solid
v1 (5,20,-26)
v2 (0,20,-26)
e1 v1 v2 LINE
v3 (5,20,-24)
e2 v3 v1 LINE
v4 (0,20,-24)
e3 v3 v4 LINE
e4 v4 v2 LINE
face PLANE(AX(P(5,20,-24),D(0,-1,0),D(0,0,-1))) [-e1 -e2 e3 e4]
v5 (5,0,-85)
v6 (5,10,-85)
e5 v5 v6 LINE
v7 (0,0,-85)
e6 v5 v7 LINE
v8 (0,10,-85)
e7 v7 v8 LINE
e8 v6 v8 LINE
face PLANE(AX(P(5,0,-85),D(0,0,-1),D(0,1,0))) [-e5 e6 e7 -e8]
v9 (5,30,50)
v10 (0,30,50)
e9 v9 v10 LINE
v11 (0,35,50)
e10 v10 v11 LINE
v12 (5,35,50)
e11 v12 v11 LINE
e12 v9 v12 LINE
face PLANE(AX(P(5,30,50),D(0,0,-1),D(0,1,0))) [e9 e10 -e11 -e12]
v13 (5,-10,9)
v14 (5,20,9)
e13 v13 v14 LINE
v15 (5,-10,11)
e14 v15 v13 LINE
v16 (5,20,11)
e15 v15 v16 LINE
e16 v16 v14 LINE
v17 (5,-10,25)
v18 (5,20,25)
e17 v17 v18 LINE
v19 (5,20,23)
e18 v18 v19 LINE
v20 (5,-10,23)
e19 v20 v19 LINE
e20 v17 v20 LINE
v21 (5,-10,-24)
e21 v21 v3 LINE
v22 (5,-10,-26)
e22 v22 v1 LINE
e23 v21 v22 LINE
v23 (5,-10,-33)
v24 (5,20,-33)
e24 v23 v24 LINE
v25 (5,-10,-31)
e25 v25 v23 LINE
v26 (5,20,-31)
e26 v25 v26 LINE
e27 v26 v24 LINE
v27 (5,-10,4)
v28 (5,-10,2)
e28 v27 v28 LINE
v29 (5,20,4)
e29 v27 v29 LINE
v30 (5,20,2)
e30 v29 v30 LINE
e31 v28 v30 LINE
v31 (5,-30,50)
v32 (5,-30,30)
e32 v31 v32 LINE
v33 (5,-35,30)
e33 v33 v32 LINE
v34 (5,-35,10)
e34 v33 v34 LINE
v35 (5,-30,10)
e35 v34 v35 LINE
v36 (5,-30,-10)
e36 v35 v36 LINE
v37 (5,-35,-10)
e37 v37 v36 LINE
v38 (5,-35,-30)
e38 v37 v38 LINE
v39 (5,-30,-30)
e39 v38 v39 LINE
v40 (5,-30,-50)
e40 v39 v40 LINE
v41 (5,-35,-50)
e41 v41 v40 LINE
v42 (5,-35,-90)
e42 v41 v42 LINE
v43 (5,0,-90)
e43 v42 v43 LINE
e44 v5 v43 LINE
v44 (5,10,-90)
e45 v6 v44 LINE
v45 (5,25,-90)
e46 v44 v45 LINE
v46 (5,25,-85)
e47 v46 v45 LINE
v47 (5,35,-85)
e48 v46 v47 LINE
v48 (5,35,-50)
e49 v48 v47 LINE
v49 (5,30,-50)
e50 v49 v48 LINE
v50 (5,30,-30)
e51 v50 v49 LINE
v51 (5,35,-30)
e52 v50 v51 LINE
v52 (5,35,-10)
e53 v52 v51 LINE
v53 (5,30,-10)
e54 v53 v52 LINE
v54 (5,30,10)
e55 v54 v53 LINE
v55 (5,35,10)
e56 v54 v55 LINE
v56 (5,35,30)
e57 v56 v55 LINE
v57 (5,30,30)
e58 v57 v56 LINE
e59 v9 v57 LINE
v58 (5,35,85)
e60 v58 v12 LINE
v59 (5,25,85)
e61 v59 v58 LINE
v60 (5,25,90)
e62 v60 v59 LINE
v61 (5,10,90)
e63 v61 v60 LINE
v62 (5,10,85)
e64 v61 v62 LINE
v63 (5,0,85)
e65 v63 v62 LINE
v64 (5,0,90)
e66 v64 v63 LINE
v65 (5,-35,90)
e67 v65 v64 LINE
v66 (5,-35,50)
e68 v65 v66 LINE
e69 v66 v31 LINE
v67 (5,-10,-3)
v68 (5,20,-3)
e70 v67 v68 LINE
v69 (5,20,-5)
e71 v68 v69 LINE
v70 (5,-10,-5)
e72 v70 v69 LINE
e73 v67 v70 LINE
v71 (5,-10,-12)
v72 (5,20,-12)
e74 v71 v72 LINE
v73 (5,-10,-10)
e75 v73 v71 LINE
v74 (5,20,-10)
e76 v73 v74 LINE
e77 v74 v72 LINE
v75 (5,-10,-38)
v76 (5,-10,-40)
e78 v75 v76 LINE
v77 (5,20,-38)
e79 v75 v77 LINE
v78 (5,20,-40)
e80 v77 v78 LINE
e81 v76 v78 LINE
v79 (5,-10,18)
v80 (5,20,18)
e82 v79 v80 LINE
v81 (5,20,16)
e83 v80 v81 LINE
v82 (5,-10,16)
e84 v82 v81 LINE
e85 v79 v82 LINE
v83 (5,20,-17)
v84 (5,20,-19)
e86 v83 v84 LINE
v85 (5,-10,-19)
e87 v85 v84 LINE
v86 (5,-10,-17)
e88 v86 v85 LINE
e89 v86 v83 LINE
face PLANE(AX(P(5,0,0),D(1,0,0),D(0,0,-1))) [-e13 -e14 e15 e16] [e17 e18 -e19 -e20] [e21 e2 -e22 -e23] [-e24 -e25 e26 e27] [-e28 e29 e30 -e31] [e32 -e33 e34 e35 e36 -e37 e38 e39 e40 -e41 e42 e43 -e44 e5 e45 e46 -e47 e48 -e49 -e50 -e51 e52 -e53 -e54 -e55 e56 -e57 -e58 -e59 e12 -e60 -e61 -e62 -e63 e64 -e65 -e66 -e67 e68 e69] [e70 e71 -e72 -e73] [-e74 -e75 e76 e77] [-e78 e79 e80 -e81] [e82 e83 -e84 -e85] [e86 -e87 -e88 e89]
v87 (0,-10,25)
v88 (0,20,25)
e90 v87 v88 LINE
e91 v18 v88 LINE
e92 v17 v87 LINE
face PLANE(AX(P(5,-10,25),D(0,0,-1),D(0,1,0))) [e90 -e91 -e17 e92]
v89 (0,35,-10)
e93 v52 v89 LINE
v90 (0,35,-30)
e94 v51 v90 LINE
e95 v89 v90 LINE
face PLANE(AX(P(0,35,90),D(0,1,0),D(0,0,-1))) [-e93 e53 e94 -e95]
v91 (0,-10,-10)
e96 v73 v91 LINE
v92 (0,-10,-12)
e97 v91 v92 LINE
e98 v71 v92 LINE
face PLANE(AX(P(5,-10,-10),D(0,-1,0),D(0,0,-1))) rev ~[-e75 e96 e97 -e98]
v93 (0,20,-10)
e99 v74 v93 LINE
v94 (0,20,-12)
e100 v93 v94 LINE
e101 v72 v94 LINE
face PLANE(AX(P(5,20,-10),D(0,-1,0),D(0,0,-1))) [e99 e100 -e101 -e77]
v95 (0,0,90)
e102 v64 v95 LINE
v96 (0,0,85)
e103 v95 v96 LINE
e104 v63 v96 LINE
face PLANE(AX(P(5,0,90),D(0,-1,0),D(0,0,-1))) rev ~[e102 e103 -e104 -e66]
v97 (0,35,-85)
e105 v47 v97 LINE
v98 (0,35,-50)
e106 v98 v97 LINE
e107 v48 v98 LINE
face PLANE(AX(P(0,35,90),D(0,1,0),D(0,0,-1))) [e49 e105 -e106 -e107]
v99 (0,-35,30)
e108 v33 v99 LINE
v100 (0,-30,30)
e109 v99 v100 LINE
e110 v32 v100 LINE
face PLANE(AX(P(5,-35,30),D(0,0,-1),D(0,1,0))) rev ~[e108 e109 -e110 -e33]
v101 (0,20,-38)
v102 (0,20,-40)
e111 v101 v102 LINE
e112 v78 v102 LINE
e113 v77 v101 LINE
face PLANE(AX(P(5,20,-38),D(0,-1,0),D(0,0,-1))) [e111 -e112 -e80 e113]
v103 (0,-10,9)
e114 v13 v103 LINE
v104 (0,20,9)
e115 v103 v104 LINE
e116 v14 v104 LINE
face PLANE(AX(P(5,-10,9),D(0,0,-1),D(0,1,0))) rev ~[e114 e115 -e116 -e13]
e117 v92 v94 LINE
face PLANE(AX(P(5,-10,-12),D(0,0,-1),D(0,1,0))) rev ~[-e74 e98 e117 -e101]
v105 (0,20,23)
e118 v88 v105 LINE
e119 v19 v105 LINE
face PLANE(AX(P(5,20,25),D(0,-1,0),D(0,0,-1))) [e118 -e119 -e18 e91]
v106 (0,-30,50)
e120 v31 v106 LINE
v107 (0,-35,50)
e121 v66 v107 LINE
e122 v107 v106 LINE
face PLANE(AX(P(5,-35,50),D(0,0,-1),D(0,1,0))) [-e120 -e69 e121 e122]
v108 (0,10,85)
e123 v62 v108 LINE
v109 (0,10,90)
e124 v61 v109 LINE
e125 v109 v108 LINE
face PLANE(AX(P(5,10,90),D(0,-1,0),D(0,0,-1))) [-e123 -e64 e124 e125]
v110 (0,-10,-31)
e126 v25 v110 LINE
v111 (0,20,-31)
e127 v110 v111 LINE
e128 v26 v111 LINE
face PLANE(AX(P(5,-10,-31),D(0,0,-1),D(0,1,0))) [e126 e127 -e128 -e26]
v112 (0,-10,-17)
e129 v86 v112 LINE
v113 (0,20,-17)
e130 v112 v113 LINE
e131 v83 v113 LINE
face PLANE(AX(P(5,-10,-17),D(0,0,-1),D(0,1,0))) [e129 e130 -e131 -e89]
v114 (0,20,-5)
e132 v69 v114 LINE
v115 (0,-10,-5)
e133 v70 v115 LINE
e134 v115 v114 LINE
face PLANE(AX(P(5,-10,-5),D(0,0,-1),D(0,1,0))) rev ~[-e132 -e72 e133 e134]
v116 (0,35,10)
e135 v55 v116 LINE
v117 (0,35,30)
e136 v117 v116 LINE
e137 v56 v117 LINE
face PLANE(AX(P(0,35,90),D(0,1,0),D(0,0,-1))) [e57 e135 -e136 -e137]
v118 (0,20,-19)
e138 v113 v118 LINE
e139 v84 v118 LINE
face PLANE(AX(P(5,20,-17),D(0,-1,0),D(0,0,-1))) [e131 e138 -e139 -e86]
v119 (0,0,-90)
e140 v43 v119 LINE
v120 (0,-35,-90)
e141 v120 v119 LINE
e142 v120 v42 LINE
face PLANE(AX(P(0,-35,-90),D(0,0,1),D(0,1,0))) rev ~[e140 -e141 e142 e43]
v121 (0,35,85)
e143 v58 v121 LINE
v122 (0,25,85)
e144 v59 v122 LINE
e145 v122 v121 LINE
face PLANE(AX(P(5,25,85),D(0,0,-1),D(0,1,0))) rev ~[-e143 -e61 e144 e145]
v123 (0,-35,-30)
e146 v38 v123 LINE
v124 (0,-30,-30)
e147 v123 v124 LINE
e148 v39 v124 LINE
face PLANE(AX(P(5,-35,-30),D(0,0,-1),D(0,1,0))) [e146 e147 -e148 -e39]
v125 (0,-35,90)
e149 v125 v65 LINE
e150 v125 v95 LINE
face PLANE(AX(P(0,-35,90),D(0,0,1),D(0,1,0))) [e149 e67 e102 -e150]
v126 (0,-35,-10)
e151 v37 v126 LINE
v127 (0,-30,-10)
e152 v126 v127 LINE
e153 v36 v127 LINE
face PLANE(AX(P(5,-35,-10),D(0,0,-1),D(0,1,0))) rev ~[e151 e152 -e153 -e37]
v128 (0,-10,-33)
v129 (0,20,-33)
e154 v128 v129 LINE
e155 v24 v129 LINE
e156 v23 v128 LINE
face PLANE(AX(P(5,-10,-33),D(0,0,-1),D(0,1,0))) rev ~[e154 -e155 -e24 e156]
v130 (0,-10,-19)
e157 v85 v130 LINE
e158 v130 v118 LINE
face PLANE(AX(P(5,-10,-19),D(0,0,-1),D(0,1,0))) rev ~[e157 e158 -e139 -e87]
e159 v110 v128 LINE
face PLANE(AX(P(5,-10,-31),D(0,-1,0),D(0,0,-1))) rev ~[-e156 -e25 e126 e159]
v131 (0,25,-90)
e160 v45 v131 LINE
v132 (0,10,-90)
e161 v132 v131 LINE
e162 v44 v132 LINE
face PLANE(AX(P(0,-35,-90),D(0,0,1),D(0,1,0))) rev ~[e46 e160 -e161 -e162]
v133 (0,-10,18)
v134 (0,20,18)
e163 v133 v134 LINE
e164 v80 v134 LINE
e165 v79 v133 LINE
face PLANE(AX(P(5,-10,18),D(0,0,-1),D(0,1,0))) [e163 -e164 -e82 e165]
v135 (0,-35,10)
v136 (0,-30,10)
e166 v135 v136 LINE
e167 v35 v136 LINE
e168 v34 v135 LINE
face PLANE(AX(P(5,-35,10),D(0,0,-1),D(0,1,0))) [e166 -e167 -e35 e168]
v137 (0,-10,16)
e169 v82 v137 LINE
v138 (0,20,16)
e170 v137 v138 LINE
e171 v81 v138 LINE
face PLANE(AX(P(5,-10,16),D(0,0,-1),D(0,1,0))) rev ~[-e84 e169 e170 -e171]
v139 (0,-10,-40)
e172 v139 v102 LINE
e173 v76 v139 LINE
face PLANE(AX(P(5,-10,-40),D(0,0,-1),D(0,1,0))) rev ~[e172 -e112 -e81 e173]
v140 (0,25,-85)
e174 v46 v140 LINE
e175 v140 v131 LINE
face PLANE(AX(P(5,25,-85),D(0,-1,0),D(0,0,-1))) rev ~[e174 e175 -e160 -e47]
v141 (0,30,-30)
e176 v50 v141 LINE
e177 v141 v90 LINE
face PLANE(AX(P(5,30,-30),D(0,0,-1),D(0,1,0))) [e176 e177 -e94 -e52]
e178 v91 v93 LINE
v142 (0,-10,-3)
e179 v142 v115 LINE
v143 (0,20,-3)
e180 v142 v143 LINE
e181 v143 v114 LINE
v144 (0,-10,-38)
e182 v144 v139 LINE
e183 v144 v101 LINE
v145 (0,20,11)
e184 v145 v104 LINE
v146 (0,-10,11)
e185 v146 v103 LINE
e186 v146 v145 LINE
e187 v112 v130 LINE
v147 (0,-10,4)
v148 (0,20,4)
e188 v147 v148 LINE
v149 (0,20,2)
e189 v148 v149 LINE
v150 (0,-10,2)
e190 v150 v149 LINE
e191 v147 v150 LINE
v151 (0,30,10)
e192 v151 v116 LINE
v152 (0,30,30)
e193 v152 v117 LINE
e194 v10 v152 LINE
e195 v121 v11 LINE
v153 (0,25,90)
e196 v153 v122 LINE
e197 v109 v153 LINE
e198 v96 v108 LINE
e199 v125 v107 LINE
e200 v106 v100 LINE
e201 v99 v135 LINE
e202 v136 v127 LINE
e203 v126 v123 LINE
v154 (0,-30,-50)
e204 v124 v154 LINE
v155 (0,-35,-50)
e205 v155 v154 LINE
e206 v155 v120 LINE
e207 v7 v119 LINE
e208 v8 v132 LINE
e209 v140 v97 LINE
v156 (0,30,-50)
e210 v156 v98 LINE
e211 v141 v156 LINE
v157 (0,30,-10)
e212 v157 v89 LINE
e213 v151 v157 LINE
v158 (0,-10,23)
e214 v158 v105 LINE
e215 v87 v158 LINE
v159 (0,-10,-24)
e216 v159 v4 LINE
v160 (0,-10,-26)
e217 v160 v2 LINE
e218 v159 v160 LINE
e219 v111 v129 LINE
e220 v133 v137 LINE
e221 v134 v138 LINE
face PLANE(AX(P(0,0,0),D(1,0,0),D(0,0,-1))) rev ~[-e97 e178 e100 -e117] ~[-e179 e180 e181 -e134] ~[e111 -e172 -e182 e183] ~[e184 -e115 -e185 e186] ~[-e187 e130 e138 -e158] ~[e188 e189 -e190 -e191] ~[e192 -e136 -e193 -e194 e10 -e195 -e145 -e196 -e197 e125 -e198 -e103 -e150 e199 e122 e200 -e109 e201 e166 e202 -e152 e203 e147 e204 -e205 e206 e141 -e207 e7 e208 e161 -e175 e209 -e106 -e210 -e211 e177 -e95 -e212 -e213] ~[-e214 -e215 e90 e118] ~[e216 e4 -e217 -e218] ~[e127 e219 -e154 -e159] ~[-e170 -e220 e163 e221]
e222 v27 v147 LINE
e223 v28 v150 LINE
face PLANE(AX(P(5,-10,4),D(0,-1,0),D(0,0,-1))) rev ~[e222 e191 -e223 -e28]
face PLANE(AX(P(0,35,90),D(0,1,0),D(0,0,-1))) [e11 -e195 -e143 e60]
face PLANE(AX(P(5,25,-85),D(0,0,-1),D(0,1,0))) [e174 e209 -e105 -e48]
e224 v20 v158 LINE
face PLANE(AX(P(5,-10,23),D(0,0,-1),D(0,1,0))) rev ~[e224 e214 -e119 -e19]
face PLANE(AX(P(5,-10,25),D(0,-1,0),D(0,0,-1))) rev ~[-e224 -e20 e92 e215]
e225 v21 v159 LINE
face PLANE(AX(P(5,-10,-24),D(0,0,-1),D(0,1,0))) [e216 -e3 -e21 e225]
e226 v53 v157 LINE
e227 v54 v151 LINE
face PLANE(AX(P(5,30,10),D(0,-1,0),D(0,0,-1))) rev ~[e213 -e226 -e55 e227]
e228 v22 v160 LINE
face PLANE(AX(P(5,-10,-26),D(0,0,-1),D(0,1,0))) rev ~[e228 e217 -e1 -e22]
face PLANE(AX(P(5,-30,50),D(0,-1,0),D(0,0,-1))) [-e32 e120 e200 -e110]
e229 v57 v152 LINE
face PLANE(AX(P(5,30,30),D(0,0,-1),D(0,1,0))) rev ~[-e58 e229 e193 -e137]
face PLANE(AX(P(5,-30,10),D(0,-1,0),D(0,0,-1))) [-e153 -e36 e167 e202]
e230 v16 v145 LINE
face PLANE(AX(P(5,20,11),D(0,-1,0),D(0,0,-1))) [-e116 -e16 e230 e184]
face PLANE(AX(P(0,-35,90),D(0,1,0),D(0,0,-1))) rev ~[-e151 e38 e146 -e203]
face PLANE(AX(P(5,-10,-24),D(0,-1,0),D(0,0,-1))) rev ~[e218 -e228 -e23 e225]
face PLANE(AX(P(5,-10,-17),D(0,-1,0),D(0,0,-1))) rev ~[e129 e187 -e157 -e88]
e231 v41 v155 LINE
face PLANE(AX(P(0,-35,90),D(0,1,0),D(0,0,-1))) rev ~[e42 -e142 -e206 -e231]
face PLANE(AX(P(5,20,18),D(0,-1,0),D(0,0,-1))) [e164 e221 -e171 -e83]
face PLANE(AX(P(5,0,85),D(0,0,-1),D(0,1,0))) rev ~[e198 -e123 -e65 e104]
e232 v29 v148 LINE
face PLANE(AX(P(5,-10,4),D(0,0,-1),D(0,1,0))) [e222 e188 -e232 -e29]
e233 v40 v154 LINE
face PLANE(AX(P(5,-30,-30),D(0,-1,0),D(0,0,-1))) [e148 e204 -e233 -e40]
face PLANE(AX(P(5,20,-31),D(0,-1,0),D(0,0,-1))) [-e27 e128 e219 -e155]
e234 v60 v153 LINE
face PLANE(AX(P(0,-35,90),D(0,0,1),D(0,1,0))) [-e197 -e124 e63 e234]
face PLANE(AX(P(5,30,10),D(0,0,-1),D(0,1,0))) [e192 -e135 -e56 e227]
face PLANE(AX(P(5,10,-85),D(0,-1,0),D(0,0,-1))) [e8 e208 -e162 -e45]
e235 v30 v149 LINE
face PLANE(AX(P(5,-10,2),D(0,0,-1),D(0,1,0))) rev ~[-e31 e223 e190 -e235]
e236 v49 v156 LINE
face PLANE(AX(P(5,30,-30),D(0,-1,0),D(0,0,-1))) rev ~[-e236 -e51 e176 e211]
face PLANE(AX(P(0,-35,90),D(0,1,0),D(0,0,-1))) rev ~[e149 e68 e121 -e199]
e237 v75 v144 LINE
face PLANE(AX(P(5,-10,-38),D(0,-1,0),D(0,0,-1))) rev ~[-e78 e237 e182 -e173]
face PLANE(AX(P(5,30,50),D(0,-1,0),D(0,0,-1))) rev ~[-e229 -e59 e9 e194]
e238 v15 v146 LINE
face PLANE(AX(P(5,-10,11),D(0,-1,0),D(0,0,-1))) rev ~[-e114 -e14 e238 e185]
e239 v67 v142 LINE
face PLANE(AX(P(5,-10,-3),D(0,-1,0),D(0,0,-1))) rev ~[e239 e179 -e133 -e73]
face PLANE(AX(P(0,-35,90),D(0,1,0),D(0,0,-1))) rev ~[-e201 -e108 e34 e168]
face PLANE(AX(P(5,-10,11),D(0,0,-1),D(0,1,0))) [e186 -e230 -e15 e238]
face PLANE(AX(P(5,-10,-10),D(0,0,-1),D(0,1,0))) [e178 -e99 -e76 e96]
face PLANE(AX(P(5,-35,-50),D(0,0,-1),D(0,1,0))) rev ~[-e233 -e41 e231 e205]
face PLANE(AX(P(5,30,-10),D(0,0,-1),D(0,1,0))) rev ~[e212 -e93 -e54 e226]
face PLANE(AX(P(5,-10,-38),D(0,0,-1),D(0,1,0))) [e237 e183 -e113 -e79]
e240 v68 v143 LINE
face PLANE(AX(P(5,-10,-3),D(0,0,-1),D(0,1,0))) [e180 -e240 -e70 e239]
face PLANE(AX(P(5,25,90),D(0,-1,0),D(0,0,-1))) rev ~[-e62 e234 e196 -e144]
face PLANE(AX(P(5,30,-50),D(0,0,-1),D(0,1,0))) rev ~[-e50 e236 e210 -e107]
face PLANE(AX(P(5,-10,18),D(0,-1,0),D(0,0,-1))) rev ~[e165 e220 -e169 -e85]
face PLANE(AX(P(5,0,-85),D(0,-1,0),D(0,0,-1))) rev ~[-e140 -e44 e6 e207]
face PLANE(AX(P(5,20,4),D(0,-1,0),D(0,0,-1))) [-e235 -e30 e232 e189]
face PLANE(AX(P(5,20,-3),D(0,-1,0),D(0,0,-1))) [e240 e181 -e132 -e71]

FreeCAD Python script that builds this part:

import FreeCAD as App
import Part
import Sketcher
from FreeCAD import Vector
Q = App.Units.Quantity

doc = App.newDocument("Part")
params = doc.addObject("Spreadsheet::Sheet", "Params")
for row, (alias, value) in enumerate([
    ("sketch1_width", "70 mm"),
    ("sketch1_height", "180 mm"),
    ("pad1_length", "5 mm"),
    ("sketch2_width", "10 mm"),
    ("sketch2_width2", "5 mm"),
    ("sketch2_height", "20 mm"),
    ("pocket1_length", "5 mm"),
    ("sketch3_width", "30 mm"),
    ("sketch3_height", "2 mm"),
    ("pocket2_length", "5 mm"),
], start=1):
    params.set(f"A{row}", alias)
    params.set(f"B{row}", "=" + value)
    params.setAlias(f"B{row}", alias)

body = doc.addObject("PartDesign::Body", "Body")

sketch1 = body.newObject("Sketcher::SketchObject", "Sketch")
sketch1.AttachmentSupport = (doc.getObject("YZ_Plane"), [""])
sketch1.MapMode = "FlatFace"
sketch1.addGeometry(Part.LineSegment(Vector(35, 90, 0), Vector(-35, 90, 0)), False)
sketch1.addGeometry(Part.LineSegment(Vector(-35, 90, 0), Vector(-35, -90, 0)), False)
sketch1.addGeometry(Part.LineSegment(Vector(-35, -90, 0), Vector(35, -90, 0)), False)
sketch1.addGeometry(Part.LineSegment(Vector(35, -90, 0), Vector(35, 90, 0)), False)
sketch1.addConstraint(Sketcher.Constraint("Coincident", 0, 2, 1, 1))
sketch1.addConstraint(Sketcher.Constraint("Coincident", 1, 2, 2, 1))
sketch1.addConstraint(Sketcher.Constraint("Coincident", 2, 2, 3, 1))
sketch1.addConstraint(Sketcher.Constraint("Coincident", 3, 2, 0, 1))
sketch1.addConstraint(Sketcher.Constraint("Horizontal", 0))
sketch1.addConstraint(Sketcher.Constraint("Vertical", 1))
sketch1.addConstraint(Sketcher.Constraint("Horizontal", 2))
sketch1.addConstraint(Sketcher.Constraint("Vertical", 3))
sketch1.addConstraint(Sketcher.Constraint("Symmetric", 0, 2, 2, 2, -1, 1))
sketch1.addConstraint(Sketcher.Constraint("DistanceX", 0, 2, 0, 1, Q("70 mm")))
sketch1.addConstraint(Sketcher.Constraint("DistanceY", 1, 2, 1, 1, Q("180 mm")))
sketch1.setExpression("Constraints[9]", "Params.sketch1_width")
sketch1.setExpression("Constraints[10]", "Params.sketch1_height")
pad1 = body.newObject("PartDesign::Pad", "Pad")
pad1.Profile = sketch1
pad1.setExpression("Length", "Params.pad1_length")

sketch2 = body.newObject("Sketcher::SketchObject", "Sketch001")
sketch2.AttachmentSupport = (doc.getObject("YZ_Plane"), [""])
sketch2.MapMode = "FlatFace"
sketch2.AttachmentOffset = App.Placement(Vector(0, 0, 5), App.Rotation())
sketch2.addGeometry(Part.LineSegment(Vector(35, 90, 0), Vector(25, 90, 0)), False)
sketch2.addGeometry(Part.LineSegment(Vector(25, 90, 0), Vector(25, 85, 0)), False)
sketch2.addGeometry(Part.LineSegment(Vector(25, 85, 0), Vector(35, 85, 0)), False)
sketch2.addGeometry(Part.LineSegment(Vector(35, 85, 0), Vector(35, 90, 0)), False)
sketch2.addGeometry(Part.LineSegment(Vector(10, 90, 0), Vector(0, 90, 0)), False)
sketch2.addGeometry(Part.LineSegment(Vector(0, 90, 0), Vector(0, 85, 0)), False)
sketch2.addGeometry(Part.LineSegment(Vector(0, 85, 0), Vector(10, 85, 0)), False)
sketch2.addGeometry(Part.LineSegment(Vector(10, 85, 0), Vector(10, 90, 0)), False)
sketch2.addGeometry(Part.LineSegment(Vector(35, -85, 0), Vector(25, -85, 0)), False)
sketch2.addGeometry(Part.LineSegment(Vector(25, -85, 0), Vector(25, -90, 0)), False)
sketch2.addGeometry(Part.LineSegment(Vector(25, -90, 0), Vector(35, -90, 0)), False)
sketch2.addGeometry(Part.LineSegment(Vector(35, -90, 0), Vector(35, -85, 0)), False)
sketch2.addGeometry(Part.LineSegment(Vector(10, -85, 0), Vector(0, -85, 0)), False)
sketch2.addGeometry(Part.LineSegment(Vector(0, -85, 0), Vector(0, -90, 0)), False)
sketch2.addGeometry(Part.LineSegment(Vector(0, -90, 0), Vector(10, -90, 0)), False)
sketch2.addGeometry(Part.LineSegment(Vector(10, -90, 0), Vector(10, -85, 0)), False)
sketch2.addGeometry(Part.LineSegment(Vector(35, 50, 0), Vector(30, 50, 0)), False)
sketch2.addGeometry(Part.LineSegment(Vector(30, 50, 0), Vector(30, 30, 0)), False)
sketch2.addGeometry(Part.LineSegment(Vector(30, 30, 0), Vector(35, 30, 0)), False)
sketch2.addGeometry(Part.LineSegment(Vector(35, 30, 0), Vector(35, 50, 0)), False)
sketch2.addGeometry(Part.LineSegment(Vector(35, -30, 0), Vector(30, -30, 0)), False)
sketch2.addGeometry(Part.LineSegment(Vector(30, -30, 0), Vector(30, -50, 0)), False)
sketch2.addGeometry(Part.LineSegment(Vector(30, -50, 0), Vector(35, -50, 0)), False)
sketch2.addGeometry(Part.LineSegment(Vector(35, -50, 0), Vector(35, -30, 0)), False)
sketch2.addGeometry(Part.LineSegment(Vector(35, 10, 0), Vector(30, 10, 0)), False)
sketch2.addGeometry(Part.LineSegment(Vector(30, 10, 0), Vector(30, -10, 0)), False)
sketch2.addGeometry(Part.LineSegment(Vector(30, -10, 0), Vector(35, -10, 0)), False)
sketch2.addGeometry(Part.LineSegment(Vector(35, -10, 0), Vector(35, 10, 0)), False)
sketch2.addGeometry(Part.LineSegment(Vector(-30, 50, 0), Vector(-35, 50, 0)), False)
sketch2.addGeometry(Part.LineSegment(Vector(-35, 50, 0), Vector(-35, 30, 0)), False)
sketch2.addGeometry(Part.LineSegment(Vector(-35, 30, 0), Vector(-30, 30, 0)), False)
sketch2.addGeometry(Part.LineSegment(Vector(-30, 30, 0), Vector(-30, 50, 0)), False)
sketch2.addGeometry(Part.LineSegment(Vector(-30, 10, 0), Vector(-35, 10, 0)), False)
sketch2.addGeometry(Part.LineSegment(Vector(-35, 10, 0), Vector(-35, -10, 0)), False)
sketch2.addGeometry(Part.LineSegment(Vector(-35, -10, 0), Vector(-30, -10, 0)), False)
sketch2.addGeometry(Part.LineSegment(Vector(-30, -10, 0), Vector(-30, 10, 0)), False)
sketch2.addGeometry(Part.LineSegment(Vector(-30, -30, 0), Vector(-35, -30, 0)), False)
sketch2.addGeometry(Part.LineSegment(Vector(-35, -30, 0), Vector(-35, -50, 0)), False)
sketch2.addGeometry(Part.LineSegment(Vector(-35, -50, 0), Vector(-30, -50, 0)), False)
sketch2.addGeometry(Part.LineSegment(Vector(-30, -50, 0), Vector(-30, -30, 0)), False)
sketch2.addConstraint(Sketcher.Constraint("Coincident", 0, 2, 1, 1))
sketch2.addConstraint(Sketcher.Constraint("Coincident", 1, 2, 2, 1))
sketch2.addConstraint(Sketcher.Constraint("Coincident", 2, 2, 3, 1))
sketch2.addConstraint(Sketcher.Constraint("Coincident", 3, 2, 0, 1))
sketch2.addConstraint(Sketcher.Constraint("Coincident", 4, 2, 5, 1))
sketch2.addConstraint(Sketcher.Constraint("Coincident", 5, 2, 6, 1))
sketch2.addConstraint(Sketcher.Constraint("Coincident", 6, 2, 7, 1))
sketch2.addConstraint(Sketcher.Constraint("Coincident", 7, 2, 4, 1))
sketch2.addConstraint(Sketcher.Constraint("Coincident", 8, 2, 9, 1))
sketch2.addConstraint(Sketcher.Constraint("Coincident", 9, 2, 10, 1))
sketch2.addConstraint(Sketcher.Constraint("Coincident", 10, 2, 11, 1))
sketch2.addConstraint(Sketcher.Constraint("Coincident", 11, 2, 8, 1))
sketch2.addConstraint(Sketcher.Constraint("Coincident", 12, 2, 13, 1))
sketch2.addConstraint(Sketcher.Constraint("Coincident", 13, 2, 14, 1))
sketch2.addConstraint(Sketcher.Constraint("Coincident", 14, 2, 15, 1))
sketch2.addConstraint(Sketcher.Constraint("Coincident", 15, 2, 12, 1))
sketch2.addConstraint(Sketcher.Constraint("Coincident", 16, 2, 17, 1))
sketch2.addConstraint(Sketcher.Constraint("Coincident", 17, 2, 18, 1))
sketch2.addConstraint(Sketcher.Constraint("Coincident", 18, 2, 19, 1))
sketch2.addConstraint(Sketcher.Constraint("Coincident", 19, 2, 16, 1))
sketch2.addConstraint(Sketcher.Constraint("Coincident", 20, 2, 21, 1))
sketch2.addConstraint(Sketcher.Constraint("Coincident", 21, 2, 22, 1))
sketch2.addConstraint(Sketcher.Constraint("Coincident", 22, 2, 23, 1))
sketch2.addConstraint(Sketcher.Constraint("Coincident", 23, 2, 20, 1))
sketch2.addConstraint(Sketcher.Constraint("Coincident", 24, 2, 25, 1))
sketch2.addConstraint(Sketcher.Constraint("Coincident", 25, 2, 26, 1))
sketch2.addConstraint(Sketcher.Constraint("Coincident", 26, 2, 27, 1))
sketch2.addConstraint(Sketcher.Constraint("Coincident", 27, 2, 24, 1))
sketch2.addConstraint(Sketcher.Constraint("Coincident", 28, 2, 29, 1))
sketch2.addConstraint(Sketcher.Constraint("Coincident", 29, 2, 30, 1))
sketch2.addConstraint(Sketcher.Constraint("Coincident", 30, 2, 31, 1))
sketch2.addConstraint(Sketcher.Constraint("Coincident", 31, 2, 28, 1))
sketch2.addConstraint(Sketcher.Constraint("Coincident", 32, 2, 33, 1))
sketch2.addConstraint(Sketcher.Constraint("Coincident", 33, 2, 34, 1))
sketch2.addConstraint(Sketcher.Constraint("Coincident", 34, 2, 35, 1))
sketch2.addConstraint(Sketcher.Constraint("Coincident", 35, 2, 32, 1))
sketch2.addConstraint(Sketcher.Constraint("Coincident", 36, 2, 37, 1))
sketch2.addConstraint(Sketcher.Constraint("Coincident", 37, 2, 38, 1))
sketch2.addConstraint(Sketcher.Constraint("Coincident", 38, 2, 39, 1))
sketch2.addConstraint(Sketcher.Constraint("Coincident", 39, 2, 36, 1))
sketch2.addConstraint(Sketcher.Constraint("Horizontal", 0))
sketch2.addConstraint(Sketcher.Constraint("Vertical", 1))
sketch2.addConstraint(Sketcher.Constraint("Horizontal", 2))
sketch2.addConstraint(Sketcher.Constraint("Vertical", 3))
sketch2.addConstraint(Sketcher.Constraint("Horizontal", 4))
sketch2.addConstraint(Sketcher.Constraint("Vertical", 5))
sketch2.addConstraint(Sketcher.Constraint("Horizontal", 6))
sketch2.addConstraint(Sketcher.Constraint("Vertical", 7))
sketch2.addConstraint(Sketcher.Constraint("Horizontal", 8))
sketch2.addConstraint(Sketcher.Constraint("Vertical", 9))
sketch2.addConstraint(Sketcher.Constraint("Horizontal", 10))
sketch2.addConstraint(Sketcher.Constraint("Vertical", 11))
sketch2.addConstraint(Sketcher.Constraint("Horizontal", 12))
sketch2.addConstraint(Sketcher.Constraint("Vertical", 13))
sketch2.addConstraint(Sketcher.Constraint("Horizontal", 14))
sketch2.addConstraint(Sketcher.Constraint("Vertical", 15))
sketch2.addConstraint(Sketcher.Constraint("Horizontal", 16))
sketch2.addConstraint(Sketcher.Constraint("Vertical", 17))
sketch2.addConstraint(Sketcher.Constraint("Horizontal", 18))
sketch2.addConstraint(Sketcher.Constraint("Vertical", 19))
sketch2.addConstraint(Sketcher.Constraint("Horizontal", 20))
sketch2.addConstraint(Sketcher.Constraint("Vertical", 21))
sketch2.addConstraint(Sketcher.Constraint("Horizontal", 22))
sketch2.addConstraint(Sketcher.Constraint("Vertical", 23))
sketch2.addConstraint(Sketcher.Constraint("Horizontal", 24))
sketch2.addConstraint(Sketcher.Constraint("Vertical", 25))
sketch2.addConstraint(Sketcher.Constraint("Horizontal", 26))
sketch2.addConstraint(Sketcher.Constraint("Vertical", 27))
sketch2.addConstraint(Sketcher.Constraint("Horizontal", 28))
sketch2.addConstraint(Sketcher.Constraint("Vertical", 29))
sketch2.addConstraint(Sketcher.Constraint("Horizontal", 30))
sketch2.addConstraint(Sketcher.Constraint("Vertical", 31))
sketch2.addConstraint(Sketcher.Constraint("Horizontal", 32))
sketch2.addConstraint(Sketcher.Constraint("Vertical", 33))
sketch2.addConstraint(Sketcher.Constraint("Horizontal", 34))
sketch2.addConstraint(Sketcher.Constraint("Vertical", 35))
sketch2.addConstraint(Sketcher.Constraint("Horizontal", 36))
sketch2.addConstraint(Sketcher.Constraint("Vertical", 37))
sketch2.addConstraint(Sketcher.Constraint("Horizontal", 38))
sketch2.addConstraint(Sketcher.Constraint("Vertical", 39))
sketch2.addConstraint(Sketcher.Constraint("Symmetric", 5, 2, 12, 2, -1, 1))
sketch2.addConstraint(Sketcher.Constraint("Symmetric", 22, 2, 28, 2, -1, 1))
sketch2.addConstraint(Sketcher.Constraint("Symmetric", 20, 2, 30, 2, -1, 1))
sketch2.addConstraint(Sketcher.Constraint("Symmetric", 26, 2, 32, 2, -1, 1))
sketch2.addConstraint(Sketcher.Constraint("Symmetric", 24, 2, 34, 2, -1, 1))
sketch2.addConstraint(Sketcher.Constraint("Symmetric", 18, 2, 36, 2, -1, 1))
sketch2.addConstraint(Sketcher.Constraint("Symmetric", 16, 2, 38, 2, -1, 1))
sketch2.addConstraint(Sketcher.Constraint("Symmetric", 19, 2, 28, 2, -2))
sketch2.addConstraint(Sketcher.Constraint("Symmetric", 17, 2, 30, 2, -2))
sketch2.addConstraint(Sketcher.Constraint("Symmetric", 1, 2, 8, 2, -1))
sketch2.addConstraint(Sketcher.Constraint("Symmetric", 3, 2, 10, 2, -1))
sketch2.addConstraint(Sketcher.Constraint("Symmetric", 4, 2, 13, 2, -1))
sketch2.addConstraint(Sketcher.Constraint("Horizontal", 3, 2, 4, 2))
sketch2.addConstraint(Sketcher.Constraint("Horizontal", 2, 2, 5, 2))
sketch2.addConstraint(Sketcher.Constraint("Horizontal", 27, 2, 32, 2))
sketch2.addConstraint(Sketcher.Constraint("Vertical", 7, 2, 14, 2))
sketch2.addConstraint(Sketcher.Constraint("Vertical", 11, 2, 18, 2))
sketch2.addConstraint(Sketcher.Constraint("Vertical", 21, 2, 24, 2))
sketch2.addConstraint(Sketcher.Constraint("Vertical", 23, 2, 26, 2))
sketch2.addConstraint(Sketcher.Constraint("Equal", 2, 4))
sketch2.addConstraint(Sketcher.Constraint("Equal", 38, 1))
sketch2.addConstraint(Sketcher.Constraint("Equal", 23, 25))
sketch2.addConstraint(Sketcher.Constraint("DistanceX", 0, 2, 0, 1, Q("10 mm")))
sketch2.addConstraint(Sketcher.Constraint("DistanceX", 16, 2, 16, 1, Q("5 mm")))
sketch2.addConstraint(Sketcher.Constraint("DistanceY", 17, 2, 17, 1, Q("20 mm")))
sketch2.addConstraint(Sketcher.Constraint("DistanceX", -1, 1, 0, 2, Q("25 mm")))
sketch2.addConstraint(Sketcher.Constraint("DistanceY", -1, 1, 0, 2, Q("90 mm")))
sketch2.addConstraint(Sketcher.Constraint("DistanceY", -1, 1, 16, 2, Q("50 mm")))
sketch2.setExpression("Constraints[102]", "Params.sketch2_width")
sketch2.setExpression("Constraints[103]", "Params.sketch2_width2")
sketch2.setExpression("Constraints[104]", "Params.sketch2_height")
pocket1 = body.newObject("PartDesign::Pocket", "Pocket")
pocket1.Profile = sketch2
pocket1.setExpression("Length", "Params.pocket1_length")

sketch3 = body.newObject("Sketcher::SketchObject", "Sketch002")
sketch3.AttachmentSupport = (doc.getObject("YZ_Plane"), [""])
sketch3.MapMode = "FlatFace"
sketch3.AttachmentOffset = App.Placement(Vector(0, 0, 5), App.Rotation())
sketch3.addGeometry(Part.LineSegment(Vector(20, -31, 0), Vector(-10, -31, 0)), False)
sketch3.addGeometry(Part.LineSegment(Vector(-10, -31, 0), Vector(-10, -33, 0)), False)
sketch3.addGeometry(Part.LineSegment(Vector(-10, -33, 0), Vector(20, -33, 0)), False)
sketch3.addGeometry(Part.LineSegment(Vector(20, -33, 0), Vector(20, -31, 0)), False)
sketch3.addGeometry(Part.LineSegment(Vector(20, -38, 0), Vector(-10, -38, 0)), False)
sketch3.addGeometry(Part.LineSegment(Vector(-10, -38, 0), Vector(-10, -40, 0)), False)
sketch3.addGeometry(Part.LineSegment(Vector(-10, -40, 0), Vector(20, -40, 0)), False)
sketch3.addGeometry(Part.LineSegment(Vector(20, -40, 0), Vector(20, -38, 0)), False)
sketch3.addGeometry(Part.LineSegment(Vector(20, -24, 0), Vector(-10, -24, 0)), False)
sketch3.addGeometry(Part.LineSegment(Vector(-10, -24, 0), Vector(-10, -26, 0)), False)
sketch3.addGeometry(Part.LineSegment(Vector(-10, -26, 0), Vector(20, -26, 0)), False)
sketch3.addGeometry(Part.LineSegment(Vector(20, -26, 0), Vector(20, -24, 0)), False)
sketch3.addGeometry(Part.LineSegment(Vector(20, -17, 0), Vector(-10, -17, 0)), False)
sketch3.addGeometry(Part.LineSegment(Vector(-10, -17, 0), Vector(-10, -19, 0)), False)
sketch3.addGeometry(Part.LineSegment(Vector(-10, -19, 0), Vector(20, -19, 0)), False)
sketch3.addGeometry(Part.LineSegment(Vector(20, -19, 0), Vector(20, -17, 0)), False)
sketch3.addGeometry(Part.LineSegment(Vector(20, -10, 0), Vector(-10, -10, 0)), False)
sketch3.addGeometry(Part.LineSegment(Vector(-10, -10, 0), Vector(-10, -12, 0)), False)
sketch3.addGeometry(Part.LineSegment(Vector(-10, -12, 0), Vector(20, -12, 0)), False)
sketch3.addGeometry(Part.LineSegment(Vector(20, -12, 0), Vector(20, -10, 0)), False)
sketch3.addGeometry(Part.LineSegment(Vector(20, -3, 0), Vector(-10, -3, 0)), False)
sketch3.addGeometry(Part.LineSegment(Vector(-10, -3, 0), Vector(-10, -5, 0)), False)
sketch3.addGeometry(Part.LineSegment(Vector(-10, -5, 0), Vector(20, -5, 0)), False)
sketch3.addGeometry(Part.LineSegment(Vector(20, -5, 0), Vector(20, -3, 0)), False)
sketch3.addGeometry(Part.LineSegment(Vector(20, 4, 0), Vector(-10, 4, 0)), False)
sketch3.addGeometry(Part.LineSegment(Vector(-10, 4, 0), Vector(-10, 2, 0)), False)
sketch3.addGeometry(Part.LineSegment(Vector(-10, 2, 0), Vector(20, 2, 0)), False)
sketch3.addGeometry(Part.LineSegment(Vector(20, 2, 0), Vector(20, 4, 0)), False)
sketch3.addGeometry(Part.LineSegment(Vector(20, 11, 0), Vector(-10, 11, 0)), False)
sketch3.addGeometry(Part.LineSegment(Vector(-10, 11, 0), Vector(-10, 9, 0)), False)
sketch3.addGeometry(Part.LineSegment(Vector(-10, 9, 0), Vector(20, 9, 0)), False)
sketch3.addGeometry(Part.LineSegment(Vector(20, 9, 0), Vector(20, 11, 0)), False)
sketch3.addGeometry(Part.LineSegment(Vector(20, 18, 0), Vector(-10, 18, 0)), False)
sketch3.addGeometry(Part.LineSegment(Vector(-10, 18, 0), Vector(-10, 16, 0)), False)
sketch3.addGeometry(Part.LineSegment(Vector(-10, 16, 0), Vector(20, 16, 0)), False)
sketch3.addGeometry(Part.LineSegment(Vector(20, 16, 0), Vector(20, 18, 0)), False)
sketch3.addGeometry(Part.LineSegment(Vector(20, 25, 0), Vector(-10, 25, 0)), False)
sketch3.addGeometry(Part.LineSegment(Vector(-10, 25, 0), Vector(-10, 23, 0)), False)
sketch3.addGeometry(Part.LineSegment(Vector(-10, 23, 0), Vector(20, 23, 0)), False)
sketch3.addGeometry(Part.LineSegment(Vector(20, 23, 0), Vector(20, 25, 0)), False)
sketch3.addConstraint(Sketcher.Constraint("Coincident", 0, 2, 1, 1))
sketch3.addConstraint(Sketcher.Constraint("Coincident", 1, 2, 2, 1))
sketch3.addConstraint(Sketcher.Constraint("Coincident", 2, 2, 3, 1))
sketch3.addConstraint(Sketcher.Constraint("Coincident", 3, 2, 0, 1))
sketch3.addConstraint(Sketcher.Constraint("Coincident", 4, 2, 5, 1))
sketch3.addConstraint(Sketcher.Constraint("Coincident", 5, 2, 6, 1))
sketch3.addConstraint(Sketcher.Constraint("Coincident", 6, 2, 7, 1))
sketch3.addConstraint(Sketcher.Constraint("Coincident", 7, 2, 4, 1))
sketch3.addConstraint(Sketcher.Constraint("Coincident", 8, 2, 9, 1))
sketch3.addConstraint(Sketcher.Constraint("Coincident", 9, 2, 10, 1))
sketch3.addConstraint(Sketcher.Constraint("Coincident", 10, 2, 11, 1))
sketch3.addConstraint(Sketcher.Constraint("Coincident", 11, 2, 8, 1))
sketch3.addConstraint(Sketcher.Constraint("Coincident", 12, 2, 13, 1))
sketch3.addConstraint(Sketcher.Constraint("Coincident", 13, 2, 14, 1))
sketch3.addConstraint(Sketcher.Constraint("Coincident", 14, 2, 15, 1))
sketch3.addConstraint(Sketcher.Constraint("Coincident", 15, 2, 12, 1))
sketch3.addConstraint(Sketcher.Constraint("Coincident", 16, 2, 17, 1))
sketch3.addConstraint(Sketcher.Constraint("Coincident", 17, 2, 18, 1))
sketch3.addConstraint(Sketcher.Constraint("Coincident", 18, 2, 19, 1))
sketch3.addConstraint(Sketcher.Constraint("Coincident", 19, 2, 16, 1))
sketch3.addConstraint(Sketcher.Constraint("Coincident", 20, 2, 21, 1))
sketch3.addConstraint(Sketcher.Constraint("Coincident", 21, 2, 22, 1))
sketch3.addConstraint(Sketcher.Constraint("Coincident", 22, 2, 23, 1))
sketch3.addConstraint(Sketcher.Constraint("Coincident", 23, 2, 20, 1))
sketch3.addConstraint(Sketcher.Constraint("Coincident", 24, 2, 25, 1))
sketch3.addConstraint(Sketcher.Constraint("Coincident", 25, 2, 26, 1))
sketch3.addConstraint(Sketcher.Constraint("Coincident", 26, 2, 27, 1))
sketch3.addConstraint(Sketcher.Constraint("Coincident", 27, 2, 24, 1))
sketch3.addConstraint(Sketcher.Constraint("Coincident", 28, 2, 29, 1))
sketch3.addConstraint(Sketcher.Constraint("Coincident", 29, 2, 30, 1))
sketch3.addConstraint(Sketcher.Constraint("Coincident", 30, 2, 31, 1))
sketch3.addConstraint(Sketcher.Constraint("Coincident", 31, 2, 28, 1))
sketch3.addConstraint(Sketcher.Constraint("Coincident", 32, 2, 33, 1))
sketch3.addConstraint(Sketcher.Constraint("Coincident", 33, 2, 34, 1))
sketch3.addConstraint(Sketcher.Constraint("Coincident", 34, 2, 35, 1))
sketch3.addConstraint(Sketcher.Constraint("Coincident", 35, 2, 32, 1))
sketch3.addConstraint(Sketcher.Constraint("Coincident", 36, 2, 37, 1))
sketch3.addConstraint(Sketcher.Constraint("Coincident", 37, 2, 38, 1))
sketch3.addConstraint(Sketcher.Constraint("Coincident", 38, 2, 39, 1))
sketch3.addConstraint(Sketcher.Constraint("Coincident", 39, 2, 36, 1))
sketch3.addConstraint(Sketcher.Constraint("Horizontal", 0))
sketch3.addConstraint(Sketcher.Constraint("Vertical", 1))
sketch3.addConstraint(Sketcher.Constraint("Horizontal", 2))
sketch3.addConstraint(Sketcher.Constraint("Vertical", 3))
sketch3.addConstraint(Sketcher.Constraint("Horizontal", 4))
sketch3.addConstraint(Sketcher.Constraint("Vertical", 5))
sketch3.addConstraint(Sketcher.Constraint("Horizontal", 6))
sketch3.addConstraint(Sketcher.Constraint("Vertical", 7))
sketch3.addConstraint(Sketcher.Constraint("Horizontal", 8))
sketch3.addConstraint(Sketcher.Constraint("Vertical", 9))
sketch3.addConstraint(Sketcher.Constraint("Horizontal", 10))
sketch3.addConstraint(Sketcher.Constraint("Vertical", 11))
sketch3.addConstraint(Sketcher.Constraint("Horizontal", 12))
sketch3.addConstraint(Sketcher.Constraint("Vertical", 13))
sketch3.addConstraint(Sketcher.Constraint("Horizontal", 14))
sketch3.addConstraint(Sketcher.Constraint("Vertical", 15))
sketch3.addConstraint(Sketcher.Constraint("Horizontal", 16))
sketch3.addConstraint(Sketcher.Constraint("Vertical", 17))
sketch3.addConstraint(Sketcher.Constraint("Horizontal", 18))
sketch3.addConstraint(Sketcher.Constraint("Vertical", 19))
sketch3.addConstraint(Sketcher.Constraint("Horizontal", 20))
sketch3.addConstraint(Sketcher.Constraint("Vertical", 21))
sketch3.addConstraint(Sketcher.Constraint("Horizontal", 22))
sketch3.addConstraint(Sketcher.Constraint("Vertical", 23))
sketch3.addConstraint(Sketcher.Constraint("Horizontal", 24))
sketch3.addConstraint(Sketcher.Constraint("Vertical", 25))
sketch3.addConstraint(Sketcher.Constraint("Horizontal", 26))
sketch3.addConstraint(Sketcher.Constraint("Vertical", 27))
sketch3.addConstraint(Sketcher.Constraint("Horizontal", 28))
sketch3.addConstraint(Sketcher.Constraint("Vertical", 29))
sketch3.addConstraint(Sketcher.Constraint("Horizontal", 30))
sketch3.addConstraint(Sketcher.Constraint("Vertical", 31))
sketch3.addConstraint(Sketcher.Constraint("Horizontal", 32))
sketch3.addConstraint(Sketcher.Constraint("Vertical", 33))
sketch3.addConstraint(Sketcher.Constraint("Horizontal", 34))
sketch3.addConstraint(Sketcher.Constraint("Vertical", 35))
sketch3.addConstraint(Sketcher.Constraint("Horizontal", 36))
sketch3.addConstraint(Sketcher.Constraint("Vertical", 37))
sketch3.addConstraint(Sketcher.Constraint("Horizontal", 38))
sketch3.addConstraint(Sketcher.Constraint("Vertical", 39))
sketch3.addConstraint(Sketcher.Constraint("Vertical", 1, 2, 4, 2))
sketch3.addConstraint(Sketcher.Constraint("Vertical", 3, 2, 6, 2))
sketch3.addConstraint(Sketcher.Constraint("Vertical", 5, 2, 8, 2))
sketch3.addConstraint(Sketcher.Constraint("Vertical", 7, 2, 10, 2))
sketch3.addConstraint(Sketcher.Constraint("Vertical", 9, 2, 12, 2))
sketch3.addConstraint(Sketcher.Constraint("Vertical", 11, 2, 14, 2))
sketch3.addConstraint(Sketcher.Constraint("Vertical", 13, 2, 16, 2))
sketch3.addConstraint(Sketcher.Constraint("Vertical", 15, 2, 18, 2))
sketch3.addConstraint(Sketcher.Constraint("Vertical", 17, 2, 20, 2))
sketch3.addConstraint(Sketcher.Constraint("Vertical", 19, 2, 22, 2))
sketch3.addConstraint(Sketcher.Constraint("Vertical", 21, 2, 24, 2))
sketch3.addConstraint(Sketcher.Constraint("Vertical", 23, 2, 26, 2))
sketch3.addConstraint(Sketcher.Constraint("Vertical", 25, 2, 28, 2))
sketch3.addConstraint(Sketcher.Constraint("Vertical", 27, 2, 30, 2))
sketch3.addConstraint(Sketcher.Constraint("Vertical", 29, 2, 32, 2))
sketch3.addConstraint(Sketcher.Constraint("Vertical", 31, 2, 34, 2))
sketch3.addConstraint(Sketcher.Constraint("Vertical", 33, 2, 36, 2))
sketch3.addConstraint(Sketcher.Constraint("Vertical", 35, 2, 38, 2))
sketch3.addConstraint(Sketcher.Constraint("Equal", 3, 5))
sketch3.addConstraint(Sketcher.Constraint("Equal", 7, 9))
sketch3.addConstraint(Sketcher.Constraint("Equal", 11, 13))
sketch3.addConstraint(Sketcher.Constraint("Equal", 15, 17))
sketch3.addConstraint(Sketcher.Constraint("Equal", 19, 21))
sketch3.addConstraint(Sketcher.Constraint("Equal", 23, 25))
sketch3.addConstraint(Sketcher.Constraint("Equal", 27, 29))
sketch3.addConstraint(Sketcher.Constraint("Equal", 31, 33))
sketch3.addConstraint(Sketcher.Constraint("Equal", 35, 37))
sketch3.addConstraint(Sketcher.Constraint("DistanceX", 0, 2, 0, 1, Q("30 mm")))
sketch3.addConstraint(Sketcher.Constraint("DistanceY", 1, 2, 1, 1, Q("2 mm")))
sketch3.addConstraint(Sketcher.Constraint("DistanceX", 0, 2, -1, 1, Q("10 mm")))
sketch3.addConstraint(Sketcher.Constraint("DistanceY", 0, 2, -1, 1, Q("31 mm")))
sketch3.addConstraint(Sketcher.Constraint("DistanceY", 4, 2, -1, 1, Q("38 mm")))
sketch3.addConstraint(Sketcher.Constraint("DistanceY", 8, 2, -1, 1, Q("24 mm")))
sketch3.addConstraint(Sketcher.Constraint("DistanceY", 12, 2, -1, 1, Q("17 mm")))
sketch3.addConstraint(Sketcher.Constraint("DistanceY", 16, 2, -1, 1, Q("10 mm")))
sketch3.addConstraint(Sketcher.Constraint("DistanceY", 20, 2, -1, 1, Q("3 mm")))
sketch3.addConstraint(Sketcher.Constraint("DistanceY", -1, 1, 24, 2, Q("4 mm")))
sketch3.addConstraint(Sketcher.Constraint("DistanceY", -1, 1, 28, 2, Q("11 mm")))
sketch3.addConstraint(Sketcher.Constraint("DistanceY", -1, 1, 32, 2, Q("18 mm")))
sketch3.addConstraint(Sketcher.Constraint("DistanceY", -1, 1, 36, 2, Q("25 mm")))
sketch3.setExpression("Constraints[107]", "Params.sketch3_width")
sketch3.setExpression("Constraints[108]", "Params.sketch3_height")
pocket2 = body.newObject("PartDesign::Pocket", "Pocket001")
pocket2.Profile = sketch3
pocket2.setExpression("Length", "Params.pocket2_length")

doc.recompute()
